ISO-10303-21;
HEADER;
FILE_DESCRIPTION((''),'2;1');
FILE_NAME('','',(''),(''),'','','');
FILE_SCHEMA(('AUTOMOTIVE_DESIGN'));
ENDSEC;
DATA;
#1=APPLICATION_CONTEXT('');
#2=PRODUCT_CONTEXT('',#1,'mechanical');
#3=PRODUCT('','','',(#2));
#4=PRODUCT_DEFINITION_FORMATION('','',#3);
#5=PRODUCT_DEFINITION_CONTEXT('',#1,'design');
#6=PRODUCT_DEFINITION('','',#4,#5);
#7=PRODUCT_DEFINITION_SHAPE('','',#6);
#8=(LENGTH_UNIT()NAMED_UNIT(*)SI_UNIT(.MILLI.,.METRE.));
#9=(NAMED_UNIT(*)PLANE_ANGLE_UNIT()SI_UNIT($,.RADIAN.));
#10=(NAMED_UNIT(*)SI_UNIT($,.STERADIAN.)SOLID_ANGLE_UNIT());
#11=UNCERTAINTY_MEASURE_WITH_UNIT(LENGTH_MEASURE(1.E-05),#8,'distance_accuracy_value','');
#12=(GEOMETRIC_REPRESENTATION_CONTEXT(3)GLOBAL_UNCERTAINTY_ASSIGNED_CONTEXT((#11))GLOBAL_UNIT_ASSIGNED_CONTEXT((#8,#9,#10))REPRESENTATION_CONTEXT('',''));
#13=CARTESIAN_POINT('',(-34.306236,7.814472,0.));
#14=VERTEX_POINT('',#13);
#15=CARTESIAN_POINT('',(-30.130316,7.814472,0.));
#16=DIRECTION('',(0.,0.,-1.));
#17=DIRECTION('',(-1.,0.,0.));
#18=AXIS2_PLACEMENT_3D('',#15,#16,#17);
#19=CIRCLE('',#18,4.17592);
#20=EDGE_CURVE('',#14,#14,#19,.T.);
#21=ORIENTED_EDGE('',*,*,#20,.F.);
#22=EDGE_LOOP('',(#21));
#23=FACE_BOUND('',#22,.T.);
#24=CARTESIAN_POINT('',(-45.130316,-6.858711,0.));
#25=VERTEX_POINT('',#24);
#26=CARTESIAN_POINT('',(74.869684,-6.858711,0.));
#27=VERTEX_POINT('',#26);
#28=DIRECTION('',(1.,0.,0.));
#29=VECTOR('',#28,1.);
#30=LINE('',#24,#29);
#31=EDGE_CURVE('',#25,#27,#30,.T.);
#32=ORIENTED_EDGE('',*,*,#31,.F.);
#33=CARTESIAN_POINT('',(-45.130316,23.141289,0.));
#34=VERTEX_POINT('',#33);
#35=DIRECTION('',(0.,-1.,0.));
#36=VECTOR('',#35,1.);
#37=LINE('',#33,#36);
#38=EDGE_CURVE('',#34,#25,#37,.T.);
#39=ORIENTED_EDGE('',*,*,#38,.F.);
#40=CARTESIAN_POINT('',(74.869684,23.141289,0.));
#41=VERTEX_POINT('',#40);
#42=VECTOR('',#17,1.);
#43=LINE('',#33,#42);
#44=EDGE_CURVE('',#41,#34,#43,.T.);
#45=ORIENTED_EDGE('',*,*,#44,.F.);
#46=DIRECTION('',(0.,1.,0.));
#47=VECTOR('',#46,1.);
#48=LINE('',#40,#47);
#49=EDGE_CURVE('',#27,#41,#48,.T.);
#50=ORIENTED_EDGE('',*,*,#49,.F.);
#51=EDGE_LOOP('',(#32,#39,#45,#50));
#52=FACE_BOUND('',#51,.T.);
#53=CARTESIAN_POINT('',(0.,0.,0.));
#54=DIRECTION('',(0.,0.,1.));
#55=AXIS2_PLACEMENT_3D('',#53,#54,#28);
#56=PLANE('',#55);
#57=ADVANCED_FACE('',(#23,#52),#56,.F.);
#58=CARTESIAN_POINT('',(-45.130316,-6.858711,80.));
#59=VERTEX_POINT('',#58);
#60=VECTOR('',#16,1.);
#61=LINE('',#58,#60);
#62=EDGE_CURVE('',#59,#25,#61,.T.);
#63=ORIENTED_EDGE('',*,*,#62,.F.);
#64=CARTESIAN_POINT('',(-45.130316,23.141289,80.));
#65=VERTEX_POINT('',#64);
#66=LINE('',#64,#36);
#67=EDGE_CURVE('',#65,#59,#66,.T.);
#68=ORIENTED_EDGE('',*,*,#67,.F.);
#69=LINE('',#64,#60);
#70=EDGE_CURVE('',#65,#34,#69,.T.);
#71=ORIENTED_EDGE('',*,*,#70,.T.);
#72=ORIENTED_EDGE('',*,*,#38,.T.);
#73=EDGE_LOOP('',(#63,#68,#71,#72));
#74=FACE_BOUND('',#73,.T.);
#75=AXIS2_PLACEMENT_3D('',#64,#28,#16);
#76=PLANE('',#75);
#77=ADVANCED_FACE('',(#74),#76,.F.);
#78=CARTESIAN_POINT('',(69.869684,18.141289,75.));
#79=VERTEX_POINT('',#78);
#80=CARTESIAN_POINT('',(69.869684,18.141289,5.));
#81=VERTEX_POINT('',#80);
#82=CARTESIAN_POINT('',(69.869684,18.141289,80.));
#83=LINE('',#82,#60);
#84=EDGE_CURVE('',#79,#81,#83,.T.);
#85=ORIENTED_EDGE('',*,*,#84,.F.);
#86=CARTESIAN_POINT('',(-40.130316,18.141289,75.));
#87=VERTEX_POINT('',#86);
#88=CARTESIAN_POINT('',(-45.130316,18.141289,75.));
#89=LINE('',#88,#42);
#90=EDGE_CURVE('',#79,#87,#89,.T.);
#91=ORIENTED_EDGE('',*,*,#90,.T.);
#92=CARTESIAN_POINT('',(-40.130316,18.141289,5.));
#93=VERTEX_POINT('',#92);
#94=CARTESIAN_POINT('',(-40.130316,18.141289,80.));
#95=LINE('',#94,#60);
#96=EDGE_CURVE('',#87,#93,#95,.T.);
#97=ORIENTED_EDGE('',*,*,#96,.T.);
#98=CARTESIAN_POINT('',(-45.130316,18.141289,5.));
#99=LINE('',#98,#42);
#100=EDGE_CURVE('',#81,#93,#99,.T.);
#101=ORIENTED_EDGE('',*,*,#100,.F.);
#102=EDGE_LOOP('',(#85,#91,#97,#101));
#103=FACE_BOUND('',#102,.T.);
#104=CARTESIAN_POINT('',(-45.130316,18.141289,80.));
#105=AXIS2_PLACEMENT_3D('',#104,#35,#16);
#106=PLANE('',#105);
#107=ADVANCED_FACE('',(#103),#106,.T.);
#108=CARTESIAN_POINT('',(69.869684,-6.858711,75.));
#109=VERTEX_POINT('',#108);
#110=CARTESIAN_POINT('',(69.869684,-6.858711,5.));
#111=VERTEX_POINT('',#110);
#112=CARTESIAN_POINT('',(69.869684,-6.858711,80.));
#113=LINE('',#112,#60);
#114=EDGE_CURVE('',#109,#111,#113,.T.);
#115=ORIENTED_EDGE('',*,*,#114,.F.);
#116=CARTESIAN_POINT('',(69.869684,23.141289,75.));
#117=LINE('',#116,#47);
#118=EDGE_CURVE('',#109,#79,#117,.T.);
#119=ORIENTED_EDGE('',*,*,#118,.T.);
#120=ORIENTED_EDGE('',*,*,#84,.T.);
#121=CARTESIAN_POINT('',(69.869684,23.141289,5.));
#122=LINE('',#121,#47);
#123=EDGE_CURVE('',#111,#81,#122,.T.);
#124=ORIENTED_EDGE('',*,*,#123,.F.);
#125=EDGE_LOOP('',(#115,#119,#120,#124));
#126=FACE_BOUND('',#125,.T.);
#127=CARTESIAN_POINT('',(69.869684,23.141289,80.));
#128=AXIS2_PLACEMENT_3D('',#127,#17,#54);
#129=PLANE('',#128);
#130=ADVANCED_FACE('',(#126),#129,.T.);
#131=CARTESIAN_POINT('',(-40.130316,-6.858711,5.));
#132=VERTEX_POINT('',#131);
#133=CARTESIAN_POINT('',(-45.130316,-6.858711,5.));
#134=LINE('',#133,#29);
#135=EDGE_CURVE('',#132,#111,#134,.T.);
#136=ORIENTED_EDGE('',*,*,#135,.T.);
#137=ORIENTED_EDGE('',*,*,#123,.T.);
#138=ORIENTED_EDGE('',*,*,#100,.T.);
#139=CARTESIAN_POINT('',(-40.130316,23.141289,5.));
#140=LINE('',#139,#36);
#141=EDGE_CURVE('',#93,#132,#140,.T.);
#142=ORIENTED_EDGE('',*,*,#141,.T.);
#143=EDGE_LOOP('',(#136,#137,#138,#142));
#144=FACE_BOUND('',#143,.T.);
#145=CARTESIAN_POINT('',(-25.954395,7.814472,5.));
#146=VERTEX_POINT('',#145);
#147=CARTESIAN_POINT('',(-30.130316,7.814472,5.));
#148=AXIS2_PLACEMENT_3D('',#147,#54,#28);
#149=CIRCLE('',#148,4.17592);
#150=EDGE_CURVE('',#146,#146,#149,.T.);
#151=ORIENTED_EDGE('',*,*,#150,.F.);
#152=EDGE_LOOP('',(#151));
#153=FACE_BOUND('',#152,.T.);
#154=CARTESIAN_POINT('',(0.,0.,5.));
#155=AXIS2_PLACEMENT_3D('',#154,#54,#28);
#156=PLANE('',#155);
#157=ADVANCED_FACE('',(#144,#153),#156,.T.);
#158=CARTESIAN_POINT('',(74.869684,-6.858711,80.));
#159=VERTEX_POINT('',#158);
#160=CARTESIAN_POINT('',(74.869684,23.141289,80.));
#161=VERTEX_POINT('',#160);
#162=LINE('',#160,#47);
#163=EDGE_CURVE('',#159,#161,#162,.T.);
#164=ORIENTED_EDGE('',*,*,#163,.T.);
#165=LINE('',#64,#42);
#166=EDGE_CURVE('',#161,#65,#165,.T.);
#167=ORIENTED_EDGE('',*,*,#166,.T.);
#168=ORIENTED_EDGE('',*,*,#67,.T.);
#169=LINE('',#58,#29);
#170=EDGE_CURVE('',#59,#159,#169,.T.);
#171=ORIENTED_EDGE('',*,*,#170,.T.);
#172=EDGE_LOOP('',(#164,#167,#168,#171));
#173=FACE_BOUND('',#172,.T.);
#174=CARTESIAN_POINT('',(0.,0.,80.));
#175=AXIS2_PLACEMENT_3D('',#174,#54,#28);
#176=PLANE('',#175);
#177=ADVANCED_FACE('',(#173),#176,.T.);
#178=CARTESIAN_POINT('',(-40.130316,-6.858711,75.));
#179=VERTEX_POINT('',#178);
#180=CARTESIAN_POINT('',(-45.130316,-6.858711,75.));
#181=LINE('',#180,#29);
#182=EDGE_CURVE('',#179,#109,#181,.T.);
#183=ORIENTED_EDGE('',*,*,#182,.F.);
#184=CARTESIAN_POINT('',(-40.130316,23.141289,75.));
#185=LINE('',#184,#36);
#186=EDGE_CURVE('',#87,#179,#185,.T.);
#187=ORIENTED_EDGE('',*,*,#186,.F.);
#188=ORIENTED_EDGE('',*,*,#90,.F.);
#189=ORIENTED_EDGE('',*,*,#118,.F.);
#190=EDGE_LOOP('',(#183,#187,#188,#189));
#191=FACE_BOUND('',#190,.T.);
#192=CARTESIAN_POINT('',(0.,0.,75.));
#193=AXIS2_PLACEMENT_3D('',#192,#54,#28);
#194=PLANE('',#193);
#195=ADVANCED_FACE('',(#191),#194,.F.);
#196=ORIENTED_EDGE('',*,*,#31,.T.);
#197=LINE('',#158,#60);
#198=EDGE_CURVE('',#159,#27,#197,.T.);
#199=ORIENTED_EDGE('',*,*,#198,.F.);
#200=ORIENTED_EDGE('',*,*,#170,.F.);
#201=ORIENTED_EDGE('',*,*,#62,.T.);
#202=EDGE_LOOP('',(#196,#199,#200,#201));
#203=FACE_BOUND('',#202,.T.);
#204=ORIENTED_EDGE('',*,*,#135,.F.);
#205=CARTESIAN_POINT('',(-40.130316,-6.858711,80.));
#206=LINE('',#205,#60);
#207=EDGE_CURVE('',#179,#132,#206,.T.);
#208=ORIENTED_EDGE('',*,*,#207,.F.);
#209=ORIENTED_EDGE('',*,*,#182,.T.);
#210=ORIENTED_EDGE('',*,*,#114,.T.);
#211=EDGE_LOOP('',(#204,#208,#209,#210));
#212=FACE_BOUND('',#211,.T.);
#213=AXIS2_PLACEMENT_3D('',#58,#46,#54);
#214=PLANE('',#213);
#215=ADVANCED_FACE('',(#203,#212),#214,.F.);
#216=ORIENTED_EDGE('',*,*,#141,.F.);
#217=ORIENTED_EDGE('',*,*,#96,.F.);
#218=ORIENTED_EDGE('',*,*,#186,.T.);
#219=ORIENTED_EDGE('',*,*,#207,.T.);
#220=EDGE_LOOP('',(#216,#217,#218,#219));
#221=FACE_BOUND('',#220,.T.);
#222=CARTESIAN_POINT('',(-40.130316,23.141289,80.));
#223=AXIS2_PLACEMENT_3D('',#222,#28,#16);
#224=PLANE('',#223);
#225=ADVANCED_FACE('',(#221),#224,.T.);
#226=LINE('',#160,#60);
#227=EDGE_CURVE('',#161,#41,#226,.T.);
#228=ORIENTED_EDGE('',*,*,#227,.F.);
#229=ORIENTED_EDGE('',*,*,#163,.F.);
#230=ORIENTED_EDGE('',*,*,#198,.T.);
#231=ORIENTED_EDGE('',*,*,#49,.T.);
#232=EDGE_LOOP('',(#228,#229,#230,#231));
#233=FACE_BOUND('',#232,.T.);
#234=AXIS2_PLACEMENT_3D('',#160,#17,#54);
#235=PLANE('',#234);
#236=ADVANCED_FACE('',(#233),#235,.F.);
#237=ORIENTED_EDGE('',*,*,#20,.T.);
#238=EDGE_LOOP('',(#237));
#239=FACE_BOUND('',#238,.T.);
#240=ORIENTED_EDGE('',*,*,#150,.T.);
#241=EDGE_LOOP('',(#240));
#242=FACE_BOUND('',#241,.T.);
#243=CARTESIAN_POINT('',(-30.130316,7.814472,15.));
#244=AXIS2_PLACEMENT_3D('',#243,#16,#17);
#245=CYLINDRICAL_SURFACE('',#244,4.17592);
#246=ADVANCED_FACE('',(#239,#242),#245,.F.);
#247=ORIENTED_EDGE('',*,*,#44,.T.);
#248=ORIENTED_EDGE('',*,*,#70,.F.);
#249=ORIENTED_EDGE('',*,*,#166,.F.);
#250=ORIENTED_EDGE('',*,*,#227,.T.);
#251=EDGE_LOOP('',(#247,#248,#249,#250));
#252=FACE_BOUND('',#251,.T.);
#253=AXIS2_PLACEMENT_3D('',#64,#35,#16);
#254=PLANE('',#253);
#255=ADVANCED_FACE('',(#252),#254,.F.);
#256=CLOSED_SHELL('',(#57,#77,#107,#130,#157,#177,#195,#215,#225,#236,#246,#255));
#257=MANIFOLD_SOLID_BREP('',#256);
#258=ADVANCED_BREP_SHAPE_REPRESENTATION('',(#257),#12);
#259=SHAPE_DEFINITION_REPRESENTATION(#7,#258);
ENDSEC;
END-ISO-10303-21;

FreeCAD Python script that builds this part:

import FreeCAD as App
import Part
import Sketcher


def faces_at(feature, points):
    """Names of the faces that lie closest to the given points."""
    faces = feature.Shape.Faces
    near = lambda p: min(range(len(faces)), key=lambda i: faces[i].distToShape(Part.Vertex(*p))[0])
    return sorted({f"Face{near(p) + 1}" for p in points})


def add_polygon(sketch, points):
    """Adds a closed chain of lines whose ends are joined by coincident constraints."""
    first, n = sketch.GeometryCount, len(points)
    for a, b in zip(points, points[1:] + points[:1]):
        sketch.addGeometry(Part.LineSegment(App.Vector(*a, 0), App.Vector(*b, 0)), False)
    for i in range(n):
        sketch.addConstraint(Sketcher.Constraint("Coincident", first + i, 2, first + (i + 1) % n, 1))

doc = App.newDocument("Part")
body = doc.addObject("PartDesign::Body", "Body")

sketch1 = body.newObject("Sketcher::SketchObject", "Sketch")
sketch1.AttachmentSupport = (doc.getObject("XY_Plane"), [""])
sketch1.MapMode = "FlatFace"
add_polygon(sketch1, [(-45, 23), (-45, -7), (75, -7), (75, 23)])
sketch1.addConstraint([
    Sketcher.Constraint("Vertical", 0),
    Sketcher.Constraint("Horizontal", 1),
    Sketcher.Constraint("Vertical", 2),
    Sketcher.Constraint("Horizontal", 3),
    Sketcher.Constraint("DistanceX", 1, 1, 1, 2, 120.0),
    Sketcher.Constraint("DistanceY", 0, 2, 0, 1, 30.0),
    Sketcher.Constraint("DistanceY", 0, 2, -1, 1, 6.858711),
    Sketcher.Constraint("DistanceX", 0, 2, -1, 1, 45.130316),
])
pad1 = body.newObject("PartDesign::Pad", "Pad")
pad1.Profile = sketch1
pad1.Length = 80
doc.recompute()

thickness = body.newObject("PartDesign::Thickness", "Thickness")
thickness.Base = (pad1, faces_at(pad1, [(14.87, -6.859, 40)]))
thickness.Value = 5
thickness.Reversed = True
thickness.Join = "Intersection"

sketch2 = body.newObject("Sketcher::SketchObject", "Sketch001")
sketch2.AttachmentSupport = (doc.getObject("XY_Plane"), [""])
sketch2.MapMode = "FlatFace"
sketch2.addGeometry(Part.Circle(App.Vector(-30.1, 7.8, 0), App.Vector(0, 0, 1), 4.2), False)
sketch2.addConstraint([
    Sketcher.Constraint("Diameter", 0, 8.35184),
    Sketcher.Constraint("DistanceY", -1, 1, 0, 3, 7.814472),
    Sketcher.Constraint("DistanceX", 0, 3, -1, 1, 30.130316),
])
pocket1 = body.newObject("PartDesign::Pocket", "Pocket")
pocket1.Profile = sketch2
pocket1.Length = 15
pocket1.Reversed = True
doc.recompute()

linearpattern = body.newObject("PartDesign::LinearPattern", "LinearPattern")
linearpattern.Originals = [pocket1]
linearpattern.Direction = (doc.getObject("X_Axis"), [""])
linearpattern.Mode = "offset"
linearpattern.Offset = 110
linearpattern.Occurrences = 4
linearpattern.Reversed = True
body.Tip = linearpattern

doc.recompute()
